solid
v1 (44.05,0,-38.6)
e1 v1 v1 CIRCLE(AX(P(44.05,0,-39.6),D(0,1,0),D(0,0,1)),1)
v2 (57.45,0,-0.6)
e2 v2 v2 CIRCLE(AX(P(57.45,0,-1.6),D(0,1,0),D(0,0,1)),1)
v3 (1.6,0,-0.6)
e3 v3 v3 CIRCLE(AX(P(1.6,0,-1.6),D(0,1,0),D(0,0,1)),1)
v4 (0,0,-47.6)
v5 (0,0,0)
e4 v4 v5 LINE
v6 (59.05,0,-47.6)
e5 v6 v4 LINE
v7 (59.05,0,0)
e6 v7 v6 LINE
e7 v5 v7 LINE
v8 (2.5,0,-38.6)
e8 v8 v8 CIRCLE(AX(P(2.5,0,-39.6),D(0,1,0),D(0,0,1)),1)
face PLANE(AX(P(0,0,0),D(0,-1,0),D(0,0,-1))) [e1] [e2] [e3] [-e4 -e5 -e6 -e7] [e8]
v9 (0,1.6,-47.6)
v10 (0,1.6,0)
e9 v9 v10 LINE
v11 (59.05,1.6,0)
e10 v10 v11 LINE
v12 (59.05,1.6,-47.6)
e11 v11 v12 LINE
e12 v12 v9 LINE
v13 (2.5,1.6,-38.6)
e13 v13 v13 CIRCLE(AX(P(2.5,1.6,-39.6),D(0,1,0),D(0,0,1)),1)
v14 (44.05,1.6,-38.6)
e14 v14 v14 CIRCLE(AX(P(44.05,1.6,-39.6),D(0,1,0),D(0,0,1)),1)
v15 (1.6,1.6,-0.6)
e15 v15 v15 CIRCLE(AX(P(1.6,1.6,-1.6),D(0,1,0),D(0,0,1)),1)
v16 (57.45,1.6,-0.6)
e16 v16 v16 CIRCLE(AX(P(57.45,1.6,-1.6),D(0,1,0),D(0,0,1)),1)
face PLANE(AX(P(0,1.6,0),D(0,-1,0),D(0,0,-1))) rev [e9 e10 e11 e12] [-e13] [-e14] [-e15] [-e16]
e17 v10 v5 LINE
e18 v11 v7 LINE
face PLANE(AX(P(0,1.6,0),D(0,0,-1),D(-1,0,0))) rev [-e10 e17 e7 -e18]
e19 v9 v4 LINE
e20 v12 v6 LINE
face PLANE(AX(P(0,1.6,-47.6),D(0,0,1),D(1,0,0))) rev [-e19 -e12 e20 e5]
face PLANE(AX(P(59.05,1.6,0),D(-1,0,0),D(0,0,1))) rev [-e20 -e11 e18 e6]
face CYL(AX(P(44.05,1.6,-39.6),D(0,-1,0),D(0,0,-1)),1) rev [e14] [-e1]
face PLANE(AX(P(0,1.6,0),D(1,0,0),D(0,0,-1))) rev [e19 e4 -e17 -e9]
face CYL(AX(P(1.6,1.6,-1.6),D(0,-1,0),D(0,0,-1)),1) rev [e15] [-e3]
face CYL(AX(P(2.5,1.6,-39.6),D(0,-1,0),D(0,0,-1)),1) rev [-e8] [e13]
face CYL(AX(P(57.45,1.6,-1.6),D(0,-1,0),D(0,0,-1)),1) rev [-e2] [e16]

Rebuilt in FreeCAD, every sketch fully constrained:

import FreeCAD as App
import Part
import Sketcher


def add_polygon(sketch, points):
    """Adds a closed chain of lines whose ends are joined by coincident constraints."""
    first, n = sketch.GeometryCount, len(points)
    for a, b in zip(points, points[1:] + points[:1]):
        sketch.addGeometry(Part.LineSegment(App.Vector(*a, 0), App.Vector(*b, 0)), False)
    for i in range(n):
        sketch.addConstraint(Sketcher.Constraint("Coincident", first + i, 2, first + (i + 1) % n, 1))

doc = App.newDocument("Part")
params = doc.addObject("Spreadsheet::Sheet", "Params")
for row, (alias, value) in enumerate([
    ("sketch1_diameter", "2 mm"),
    ("sketch1_height", "47.6 mm"),
    ("sketch1_width", "59.05 mm"),
    ("pad1_length", "1.6 mm"),
], start=1):
    params.set(f"A{row}", alias)
    params.set(f"B{row}", "=" + value)
    params.setAlias(f"B{row}", alias)

body = doc.addObject("PartDesign::Body", "Body")

# Sketch on XZ plane
sketch1 = body.newObject("Sketcher::SketchObject", "Sketch")
sketch1.AttachmentSupport = (doc.getObject("XZ_Plane"), [""])
sketch1.MapMode = "FlatFace"
add_polygon(sketch1, [(0, -47.6), (0, 0), (59, 0), (59, -47.6)])  # lines 0-3
sketch1.addGeometry(Part.Circle(App.Vector(1.6, -1.6, 0), App.Vector(0, 0, 1), 1), False)  # 4
sketch1.addGeometry(Part.Circle(App.Vector(57.5, -1.6, 0), App.Vector(0, 0, 1), 1), False)  # 5
sketch1.addGeometry(Part.Circle(App.Vector(2.5, -39.6, 0), App.Vector(0, 0, 1), 1), False)  # 6
sketch1.addGeometry(Part.Circle(App.Vector(44, -39.6, 0), App.Vector(0, 0, 1), 1), False)  # 7
sketch1.addConstraint(Sketcher.Constraint("Vertical", 0))
sketch1.addConstraint(Sketcher.Constraint("Horizontal", 1))
sketch1.addConstraint(Sketcher.Constraint("Vertical", 2))
sketch1.addConstraint(Sketcher.Constraint("Horizontal", 3))
sketch1.addConstraint(Sketcher.Constraint("Coincident", 0, 2, -1, 1))
sketch1.addConstraint(Sketcher.Constraint("Equal", 4, 5))
sketch1.addConstraint(Sketcher.Constraint("Equal", 5, 6))
sketch1.addConstraint(Sketcher.Constraint("Equal", 6, 7))
sketch1.addConstraint(Sketcher.Constraint("Horizontal", 4, 3, 5, 3))
sketch1.addConstraint(Sketcher.Constraint("Horizontal", 6, 3, 7, 3))
sketch1.addConstraint(Sketcher.Constraint("Diameter", 4, 2.0))
sketch1.addConstraint(Sketcher.Constraint("DistanceY", 0, 1, 0, 2, 47.6))
sketch1.addConstraint(Sketcher.Constraint("DistanceY", 6, 3, 4, 3, 38.0))
sketch1.addConstraint(Sketcher.Constraint("DistanceX", 7, 3, 1, 2, 15.0))
sketch1.addConstraint(Sketcher.Constraint("DistanceY", 2, 2, 7, 3, 8.0))
sketch1.addConstraint(Sketcher.Constraint("DistanceX", 1, 1, 1, 2, 59.05))
sketch1.addConstraint(Sketcher.Constraint("DistanceX", -1, 1, 4, 3, 1.6))
sketch1.addConstraint(Sketcher.Constraint("DistanceX", -1, 1, 6, 3, 2.5))
sketch1.addConstraint(Sketcher.Constraint("DistanceX", 7, 3, 5, 3, 13.4))
sketch1.setExpression("Constraints[14]", "Params.sketch1_diameter")
sketch1.setExpression("Constraints[15]", "Params.sketch1_height")
sketch1.setExpression("Constraints[19]", "Params.sketch1_width")
pad1 = body.newObject("PartDesign::Pad", "Pad")
pad1.Profile = sketch1
pad1.setExpression("Length", "Params.pad1_length")
pad1.Reversed = True

doc.recompute()
